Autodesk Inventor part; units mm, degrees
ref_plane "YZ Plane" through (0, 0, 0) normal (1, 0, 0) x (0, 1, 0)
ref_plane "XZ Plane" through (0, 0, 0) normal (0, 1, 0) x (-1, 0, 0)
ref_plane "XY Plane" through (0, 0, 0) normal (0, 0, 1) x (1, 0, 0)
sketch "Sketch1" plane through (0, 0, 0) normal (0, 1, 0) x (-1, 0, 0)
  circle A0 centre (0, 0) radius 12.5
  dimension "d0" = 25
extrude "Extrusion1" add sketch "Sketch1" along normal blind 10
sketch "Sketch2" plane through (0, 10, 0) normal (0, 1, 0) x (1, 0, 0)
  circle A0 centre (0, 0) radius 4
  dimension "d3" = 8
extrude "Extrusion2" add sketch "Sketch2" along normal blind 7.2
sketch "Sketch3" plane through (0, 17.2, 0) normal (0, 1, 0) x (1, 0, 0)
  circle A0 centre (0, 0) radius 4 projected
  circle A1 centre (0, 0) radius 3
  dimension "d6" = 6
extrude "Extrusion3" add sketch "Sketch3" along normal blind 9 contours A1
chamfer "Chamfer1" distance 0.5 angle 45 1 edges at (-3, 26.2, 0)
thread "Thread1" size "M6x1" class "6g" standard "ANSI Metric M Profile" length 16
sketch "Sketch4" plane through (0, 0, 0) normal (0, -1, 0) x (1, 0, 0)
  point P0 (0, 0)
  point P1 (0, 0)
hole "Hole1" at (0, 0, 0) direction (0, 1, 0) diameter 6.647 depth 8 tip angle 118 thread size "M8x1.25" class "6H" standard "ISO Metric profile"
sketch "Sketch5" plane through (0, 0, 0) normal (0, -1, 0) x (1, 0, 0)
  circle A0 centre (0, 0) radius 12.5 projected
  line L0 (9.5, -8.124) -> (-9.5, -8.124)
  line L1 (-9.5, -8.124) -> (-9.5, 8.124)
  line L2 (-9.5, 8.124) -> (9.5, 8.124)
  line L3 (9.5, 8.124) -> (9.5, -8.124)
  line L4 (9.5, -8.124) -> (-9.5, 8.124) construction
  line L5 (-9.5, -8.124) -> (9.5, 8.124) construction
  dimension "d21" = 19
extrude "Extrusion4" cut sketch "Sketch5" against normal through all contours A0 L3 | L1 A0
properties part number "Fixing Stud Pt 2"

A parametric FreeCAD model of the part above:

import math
import FreeCAD as App
import Part
import Sketcher

V = App.Vector


def edges_at(feature, points):
    """Names of the edges that pass closest to the given points."""
    edges = feature.Shape.Edges
    near = lambda p: min(range(len(edges)), key=lambda i: edges[i].distToShape(Part.Vertex(*p))[0])
    return sorted({f"Edge{near(p) + 1}" for p in points})

doc = App.newDocument("Part")
body = doc.addObject("PartDesign::Body", "Body")

sketch1 = body.newObject("Sketcher::SketchObject", "Sketch")
sketch1.AttachmentSupport = (doc.getObject("XZ_Plane"), [""])
sketch1.MapMode = "FlatFace"
sketch1.addGeometry(Part.Circle(V(0, 0, 0), V(0, 0, 1), 12.5), False)
sketch1.addConstraint([
    Sketcher.Constraint("Coincident", 0, 3, -1, 1),
    Sketcher.Constraint("Diameter", 0, 25.0),
])
pad1 = body.newObject("PartDesign::Pad", "Pad")
pad1.Profile = sketch1
pad1.Length = 10
pad1.Reversed = True

sketch2 = body.newObject("Sketcher::SketchObject", "Sketch001")
sketch2.AttachmentSupport = (doc.getObject("XZ_Plane"), [""])
sketch2.MapMode = "FlatFace"
sketch2.AttachmentOffset = App.Placement(V(0, 0, -10), App.Rotation())
sketch2.addGeometry(Part.Circle(V(0, 0, 0), V(0, 0, 1), 4), False)
sketch2.addConstraint([
    Sketcher.Constraint("Coincident", 0, 3, -1, 1),
    Sketcher.Constraint("Diameter", 0, 8.0),
])
pad2 = body.newObject("PartDesign::Pad", "Pad001")
pad2.Profile = sketch2
pad2.Length = 7.2
pad2.Reversed = True

sketch3 = body.newObject("Sketcher::SketchObject", "Sketch002")
sketch3.AttachmentSupport = (doc.getObject("XZ_Plane"), [""])
sketch3.MapMode = "FlatFace"
sketch3.AttachmentOffset = App.Placement(V(0, 0, -17.2), App.Rotation())
sketch3.addGeometry(Part.Circle(V(0, 0, 0), V(0, 0, 1), 3), False)
sketch3.addConstraint([
    Sketcher.Constraint("Coincident", 0, 3, -1, 1),
    Sketcher.Constraint("Diameter", 0, 6.0),
])
pad3 = body.newObject("PartDesign::Pad", "Pad002")
pad3.Profile = sketch3
pad3.Length = 9
pad3.Reversed = True
doc.recompute()

chamfer = body.newObject("PartDesign::Chamfer", "Chamfer")
chamfer.Base = (pad3, edges_at(pad3, [(-3, 26.2, 0)]))
chamfer.Size = 0.5

sketch4 = body.newObject("Sketcher::SketchObject", "Sketch003")
sketch4.AttachmentSupport = (doc.getObject("XZ_Plane"), [""])
sketch4.MapMode = "FlatFace"
sketch4.addGeometry(Part.Circle(V(0, 0, 0), V(0, 0, 1), 3.3235), False)
sketch4.addConstraint([
    Sketcher.Constraint("Coincident", 0, 3, -1, 1),
    Sketcher.Constraint("Diameter", 0, 6.647),
])
doc.recompute()
hole = body.newObject("PartDesign::Hole", "Hole")
hole.Profile = sketch4
hole.ThreadType = "None"
hole.Diameter = 6.647
hole.DepthType = "Dimension"
hole.Depth = 8
hole.DrillPoint = "Angled"
hole.DrillPointAngle = 118

sketch5 = body.newObject("Sketcher::SketchObject", "Sketch004")
sketch5.AttachmentSupport = (doc.getObject("XZ_Plane"), [""])
sketch5.MapMode = "FlatFace"
sketch5.addGeometry([
    Part.ArcOfCircle(Part.Circle(V(0, 0, 0), V(0, 0, 1), 12.5), math.radians(-40.535668), math.radians(40.535668)),
    Part.LineSegment(V(9.5, -8.124, 0), V(9.5, 8.124, 0)),
    Part.LineSegment(V(-9.5, -8.124, 0), V(-9.5, 8.124, 0)),
    Part.ArcOfCircle(Part.Circle(V(0, 0, 0), V(0, 0, 1), 12.5), math.radians(139.464332), math.radians(220.535668)),
], False)
sketch5.addConstraint([
    Sketcher.Constraint("Coincident", 0, 1, 1, 1),
    Sketcher.Constraint("Coincident", 1, 2, 0, 2),
    Sketcher.Constraint("Coincident", 2, 1, 3, 2),
    Sketcher.Constraint("Coincident", 3, 1, 2, 2),
    Sketcher.Constraint("Vertical", 1),
    Sketcher.Constraint("Vertical", 2),
    Sketcher.Constraint("Coincident", 0, 3, -1, 1),
    Sketcher.Constraint("Coincident", 3, 3, -1, 1),
    Sketcher.Constraint("Equal", 0, 3),
    Sketcher.Constraint("Horizontal", 0, 1, 2, 1),
    Sketcher.Constraint("DistanceX", 2, 1, 0, 1, 19.0),
    Sketcher.Constraint("Radius", 0, 12.5),
])
pocket1 = body.newObject("PartDesign::Pocket", "Pocket")
pocket1.Profile = sketch5
pocket1.Type = "ThroughAll"

doc.recompute()
